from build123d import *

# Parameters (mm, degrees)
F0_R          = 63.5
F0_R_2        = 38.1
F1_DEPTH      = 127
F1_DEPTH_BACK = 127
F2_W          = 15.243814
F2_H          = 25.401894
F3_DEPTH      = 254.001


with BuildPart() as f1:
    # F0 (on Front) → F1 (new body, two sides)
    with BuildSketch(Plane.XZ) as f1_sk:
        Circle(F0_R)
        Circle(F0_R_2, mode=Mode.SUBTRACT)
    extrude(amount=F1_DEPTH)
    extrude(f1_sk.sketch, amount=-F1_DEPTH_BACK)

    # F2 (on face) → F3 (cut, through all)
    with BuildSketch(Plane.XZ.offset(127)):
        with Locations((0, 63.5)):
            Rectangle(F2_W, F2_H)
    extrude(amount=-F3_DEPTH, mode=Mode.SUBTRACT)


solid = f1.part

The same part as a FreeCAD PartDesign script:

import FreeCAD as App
import Part
import Sketcher

V = App.Vector
Q = App.Units.Quantity

doc = App.newDocument("Part")
body = doc.addObject("PartDesign::Body", "Body")

sketch1 = body.newObject("Sketcher::SketchObject", "Sketch")
sketch1.AttachmentSupport = (doc.getObject("XZ_Plane"), [""])
sketch1.MapMode = "FlatFace"
sketch1.addGeometry([
    Part.Circle(V(0, 0, 0), V(0, 0, 1), 63.5),
    Part.Circle(V(0, 0, 0), V(0, 0, 1), 38.1),
], False)
sketch1.addConstraint([
    Sketcher.Constraint("Coincident", 0, 3, -1, 1),
    Sketcher.Constraint("Coincident", 1, 3, -1, 1),
    Sketcher.Constraint("Diameter", 0, Q("5 in")),
    Sketcher.Constraint("Diameter", 1, Q("3 in")),
])
pad1 = body.newObject("PartDesign::Pad", "Pad")
pad1.Profile = sketch1
pad1.Type = "TwoLengths"
pad1.Length = Q("5 in")
pad1.Length2 = Q("5 in")

sketch2 = body.newObject("Sketcher::SketchObject", "Sketch001")
sketch2.AttachmentSupport = (doc.getObject("XZ_Plane"), [""])
sketch2.MapMode = "FlatFace"
sketch2.AttachmentOffset = App.Placement(V(0, 0, 5 * 25.4), App.Rotation())
sketch2.addGeometry([
    Part.LineSegment(V(-7.621907, 76.200947, 0), V(-7.621907, 50.799053, 0)),
    Part.LineSegment(V(-7.621907, 50.799053, 0), V(7.621907, 50.799053, 0)),
    Part.LineSegment(V(7.621907, 50.799053, 0), V(7.621907, 76.200947, 0)),
    Part.LineSegment(V(7.621907, 76.200947, 0), V(-7.621907, 76.200947, 0)),
], False)
sketch2.addConstraint([
    Sketcher.Constraint("Coincident", 0, 2, 1, 1),
    Sketcher.Constraint("Coincident", 1, 2, 2, 1),
    Sketcher.Constraint("Coincident", 2, 2, 3, 1),
    Sketcher.Constraint("Coincident", 3, 2, 0, 1),
    Sketcher.Constraint("Vertical", 0),
    Sketcher.Constraint("Horizontal", 1),
    Sketcher.Constraint("Vertical", 2),
    Sketcher.Constraint("Horizontal", 3),
    Sketcher.Constraint("DistanceX", 1, 1, 1, 2, 15.243814),
    Sketcher.Constraint("DistanceY", 0, 2, 0, 1, 25.401894),
    Sketcher.Constraint("DistanceX", 0, 2, -1, 1, 7.621907),
    Sketcher.Constraint("DistanceY", -1, 1, 0, 2, 50.799053),
])
pocket1 = body.newObject("PartDesign::Pocket", "Pocket")
pocket1.Profile = sketch2
pocket1.Type = "ThroughAll"

doc.recompute()
